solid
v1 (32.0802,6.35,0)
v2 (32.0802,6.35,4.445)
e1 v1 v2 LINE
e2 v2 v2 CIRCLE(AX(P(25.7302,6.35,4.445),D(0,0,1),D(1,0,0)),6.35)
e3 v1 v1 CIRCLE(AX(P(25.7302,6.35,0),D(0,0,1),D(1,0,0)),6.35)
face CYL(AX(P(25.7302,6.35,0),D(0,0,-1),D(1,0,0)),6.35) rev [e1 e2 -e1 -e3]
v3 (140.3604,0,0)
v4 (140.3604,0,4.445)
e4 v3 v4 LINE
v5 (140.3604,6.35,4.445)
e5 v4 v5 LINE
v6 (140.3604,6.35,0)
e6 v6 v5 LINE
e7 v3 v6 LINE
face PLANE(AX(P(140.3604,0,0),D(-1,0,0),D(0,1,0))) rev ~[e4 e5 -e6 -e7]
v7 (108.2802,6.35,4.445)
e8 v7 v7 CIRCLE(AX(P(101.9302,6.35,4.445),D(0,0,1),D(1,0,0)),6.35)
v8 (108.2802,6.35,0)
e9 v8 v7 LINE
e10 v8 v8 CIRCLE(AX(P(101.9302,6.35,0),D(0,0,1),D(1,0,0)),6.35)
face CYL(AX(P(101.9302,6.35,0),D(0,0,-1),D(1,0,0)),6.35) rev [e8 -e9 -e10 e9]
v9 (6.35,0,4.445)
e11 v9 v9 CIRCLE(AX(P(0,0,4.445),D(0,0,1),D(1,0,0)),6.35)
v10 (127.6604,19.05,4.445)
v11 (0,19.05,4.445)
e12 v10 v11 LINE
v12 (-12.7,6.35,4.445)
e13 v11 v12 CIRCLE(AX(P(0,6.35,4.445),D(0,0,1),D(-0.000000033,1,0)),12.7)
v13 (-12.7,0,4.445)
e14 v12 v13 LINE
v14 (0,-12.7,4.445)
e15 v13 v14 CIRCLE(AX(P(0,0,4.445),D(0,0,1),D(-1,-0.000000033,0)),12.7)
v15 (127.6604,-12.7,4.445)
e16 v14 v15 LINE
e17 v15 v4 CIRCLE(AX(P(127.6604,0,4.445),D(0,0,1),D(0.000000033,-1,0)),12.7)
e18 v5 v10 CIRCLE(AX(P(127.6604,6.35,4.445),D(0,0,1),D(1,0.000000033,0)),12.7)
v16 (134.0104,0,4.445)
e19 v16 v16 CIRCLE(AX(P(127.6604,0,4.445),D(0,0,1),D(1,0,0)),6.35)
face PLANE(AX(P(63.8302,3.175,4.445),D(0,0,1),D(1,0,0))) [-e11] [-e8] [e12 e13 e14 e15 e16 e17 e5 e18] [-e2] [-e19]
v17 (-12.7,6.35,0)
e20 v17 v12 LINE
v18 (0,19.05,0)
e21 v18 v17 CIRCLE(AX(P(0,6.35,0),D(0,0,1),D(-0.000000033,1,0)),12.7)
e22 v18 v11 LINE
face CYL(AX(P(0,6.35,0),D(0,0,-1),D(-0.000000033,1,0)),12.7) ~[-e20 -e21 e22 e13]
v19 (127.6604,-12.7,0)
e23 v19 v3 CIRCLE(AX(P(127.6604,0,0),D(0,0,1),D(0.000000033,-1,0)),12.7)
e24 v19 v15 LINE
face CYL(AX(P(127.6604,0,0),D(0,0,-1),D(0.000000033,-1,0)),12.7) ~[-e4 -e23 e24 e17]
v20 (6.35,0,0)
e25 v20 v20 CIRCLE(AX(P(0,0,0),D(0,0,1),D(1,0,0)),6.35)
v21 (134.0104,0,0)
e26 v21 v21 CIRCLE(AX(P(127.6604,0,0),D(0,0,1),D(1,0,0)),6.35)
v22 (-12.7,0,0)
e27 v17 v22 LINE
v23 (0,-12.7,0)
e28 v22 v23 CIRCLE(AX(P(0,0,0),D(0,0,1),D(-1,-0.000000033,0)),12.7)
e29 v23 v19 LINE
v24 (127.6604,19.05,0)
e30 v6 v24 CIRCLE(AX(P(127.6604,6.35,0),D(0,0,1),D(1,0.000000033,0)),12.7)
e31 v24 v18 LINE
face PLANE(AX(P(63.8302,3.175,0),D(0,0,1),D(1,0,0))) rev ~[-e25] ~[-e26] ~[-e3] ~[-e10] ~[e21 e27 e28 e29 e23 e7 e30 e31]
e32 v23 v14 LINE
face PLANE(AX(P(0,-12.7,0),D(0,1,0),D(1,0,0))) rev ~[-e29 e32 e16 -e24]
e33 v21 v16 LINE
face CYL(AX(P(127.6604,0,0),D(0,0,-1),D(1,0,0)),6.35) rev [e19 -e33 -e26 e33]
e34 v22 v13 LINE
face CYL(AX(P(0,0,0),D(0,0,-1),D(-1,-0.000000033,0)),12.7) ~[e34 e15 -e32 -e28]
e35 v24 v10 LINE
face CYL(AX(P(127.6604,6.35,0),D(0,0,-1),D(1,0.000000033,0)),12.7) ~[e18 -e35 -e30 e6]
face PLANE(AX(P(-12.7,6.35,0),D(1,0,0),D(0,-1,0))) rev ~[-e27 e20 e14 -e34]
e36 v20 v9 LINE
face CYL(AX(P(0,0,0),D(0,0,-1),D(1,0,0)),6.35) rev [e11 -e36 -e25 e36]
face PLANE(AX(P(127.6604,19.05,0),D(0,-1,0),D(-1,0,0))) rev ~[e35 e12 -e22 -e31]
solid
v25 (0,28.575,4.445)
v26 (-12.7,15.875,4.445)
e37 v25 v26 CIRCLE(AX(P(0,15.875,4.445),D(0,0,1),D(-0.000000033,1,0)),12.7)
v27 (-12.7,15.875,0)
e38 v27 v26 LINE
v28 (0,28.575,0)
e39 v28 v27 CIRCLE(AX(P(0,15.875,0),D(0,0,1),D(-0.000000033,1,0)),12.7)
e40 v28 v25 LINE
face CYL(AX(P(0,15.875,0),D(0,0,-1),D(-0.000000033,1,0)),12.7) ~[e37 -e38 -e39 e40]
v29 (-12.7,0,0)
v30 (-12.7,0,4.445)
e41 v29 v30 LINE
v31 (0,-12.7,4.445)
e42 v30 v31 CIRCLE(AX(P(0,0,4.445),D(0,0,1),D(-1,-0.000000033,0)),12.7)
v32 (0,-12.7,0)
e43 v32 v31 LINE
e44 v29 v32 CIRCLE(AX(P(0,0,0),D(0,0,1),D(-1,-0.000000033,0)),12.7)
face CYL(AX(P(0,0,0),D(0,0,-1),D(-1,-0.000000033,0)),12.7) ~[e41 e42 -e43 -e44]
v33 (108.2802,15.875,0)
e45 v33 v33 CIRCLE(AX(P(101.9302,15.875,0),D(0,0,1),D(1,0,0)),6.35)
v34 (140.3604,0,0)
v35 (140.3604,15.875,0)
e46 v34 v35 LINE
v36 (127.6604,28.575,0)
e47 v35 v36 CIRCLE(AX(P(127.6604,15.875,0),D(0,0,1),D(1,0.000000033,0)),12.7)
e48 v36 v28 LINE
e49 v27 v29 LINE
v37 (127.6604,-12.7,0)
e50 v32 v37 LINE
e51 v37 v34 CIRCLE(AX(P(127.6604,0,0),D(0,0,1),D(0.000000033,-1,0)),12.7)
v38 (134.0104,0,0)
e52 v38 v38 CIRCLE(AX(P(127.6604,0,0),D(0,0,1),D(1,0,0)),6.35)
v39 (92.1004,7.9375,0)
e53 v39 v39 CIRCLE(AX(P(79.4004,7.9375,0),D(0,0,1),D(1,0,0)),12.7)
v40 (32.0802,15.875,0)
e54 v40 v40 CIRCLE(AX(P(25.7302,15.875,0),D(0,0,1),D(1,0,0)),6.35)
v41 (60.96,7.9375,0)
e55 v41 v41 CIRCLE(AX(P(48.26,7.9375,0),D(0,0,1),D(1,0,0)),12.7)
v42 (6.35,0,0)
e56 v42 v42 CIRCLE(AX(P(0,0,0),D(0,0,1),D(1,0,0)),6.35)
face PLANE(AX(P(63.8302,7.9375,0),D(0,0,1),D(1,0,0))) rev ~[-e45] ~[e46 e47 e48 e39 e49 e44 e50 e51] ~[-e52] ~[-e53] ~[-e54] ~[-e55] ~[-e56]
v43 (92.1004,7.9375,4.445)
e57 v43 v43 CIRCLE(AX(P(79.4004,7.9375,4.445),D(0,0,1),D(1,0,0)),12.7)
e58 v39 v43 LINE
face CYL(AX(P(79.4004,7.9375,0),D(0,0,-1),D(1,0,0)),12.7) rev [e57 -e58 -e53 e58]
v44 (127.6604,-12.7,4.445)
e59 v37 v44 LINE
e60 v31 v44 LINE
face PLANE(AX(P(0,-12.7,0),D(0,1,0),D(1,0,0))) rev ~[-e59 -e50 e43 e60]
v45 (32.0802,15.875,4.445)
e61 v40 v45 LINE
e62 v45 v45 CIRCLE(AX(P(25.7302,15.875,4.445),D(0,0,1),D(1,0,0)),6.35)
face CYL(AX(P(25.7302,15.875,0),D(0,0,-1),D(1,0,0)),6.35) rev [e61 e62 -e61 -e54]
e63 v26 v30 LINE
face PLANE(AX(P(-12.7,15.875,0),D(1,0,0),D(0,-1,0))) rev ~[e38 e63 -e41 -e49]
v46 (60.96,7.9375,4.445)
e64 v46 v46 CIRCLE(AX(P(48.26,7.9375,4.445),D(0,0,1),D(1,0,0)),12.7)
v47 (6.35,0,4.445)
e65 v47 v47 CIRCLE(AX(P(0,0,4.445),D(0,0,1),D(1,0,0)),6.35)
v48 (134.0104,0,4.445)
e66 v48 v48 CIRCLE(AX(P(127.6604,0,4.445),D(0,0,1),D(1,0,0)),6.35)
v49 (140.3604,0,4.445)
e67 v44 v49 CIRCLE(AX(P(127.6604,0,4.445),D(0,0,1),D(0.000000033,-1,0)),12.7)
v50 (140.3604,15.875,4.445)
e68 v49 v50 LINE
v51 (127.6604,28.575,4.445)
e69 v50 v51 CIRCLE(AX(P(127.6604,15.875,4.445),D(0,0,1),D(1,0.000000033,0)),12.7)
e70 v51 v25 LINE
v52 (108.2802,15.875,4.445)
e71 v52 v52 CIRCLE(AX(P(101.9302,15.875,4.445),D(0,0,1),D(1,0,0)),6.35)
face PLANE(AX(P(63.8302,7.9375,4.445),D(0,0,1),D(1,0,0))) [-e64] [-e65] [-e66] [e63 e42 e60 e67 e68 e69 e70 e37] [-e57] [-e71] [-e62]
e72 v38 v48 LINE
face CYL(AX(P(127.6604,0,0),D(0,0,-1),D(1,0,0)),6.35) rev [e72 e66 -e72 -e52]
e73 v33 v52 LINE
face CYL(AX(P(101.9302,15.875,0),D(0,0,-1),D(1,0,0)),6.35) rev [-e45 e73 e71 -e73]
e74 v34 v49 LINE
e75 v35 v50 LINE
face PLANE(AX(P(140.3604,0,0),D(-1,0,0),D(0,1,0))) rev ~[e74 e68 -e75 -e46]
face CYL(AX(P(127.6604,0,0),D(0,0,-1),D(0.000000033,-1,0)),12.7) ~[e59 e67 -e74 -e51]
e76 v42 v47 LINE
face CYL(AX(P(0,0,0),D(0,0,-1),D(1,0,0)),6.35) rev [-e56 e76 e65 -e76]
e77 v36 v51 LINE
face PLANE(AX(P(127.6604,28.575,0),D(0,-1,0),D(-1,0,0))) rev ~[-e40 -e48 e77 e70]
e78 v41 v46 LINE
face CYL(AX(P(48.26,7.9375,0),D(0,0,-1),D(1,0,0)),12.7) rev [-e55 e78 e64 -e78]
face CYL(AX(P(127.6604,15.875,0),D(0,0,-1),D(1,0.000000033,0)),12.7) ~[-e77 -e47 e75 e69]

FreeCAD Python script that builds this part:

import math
import FreeCAD as App
import Part
import Sketcher

V = App.Vector
Q = App.Units.Quantity

doc = App.newDocument("Part")
body = doc.addObject("PartDesign::Body", "Body")

# Sketch on XY plane
sketch1 = doc.addObject("Sketcher::SketchObject", "Sketch")
body.addObject(sketch1)
sketch1.AttachmentSupport = (doc.XY_Plane, [""])
sketch1.MapMode = "FlatFace"
sketch1.addGeometry([
    Part.LineSegment(V(127.6604, 19.05, 0), V(0, 19.05, 0)),  # 0
    Part.ArcOfCircle(Part.Circle(V(0, 6.35, 0), V(0, 0, 1), 12.7), math.radians(90.000002), math.radians(179.999998)),  # 1
    Part.LineSegment(V(-12.7, 6.35, 0), V(-12.7, 0, 0)),  # 2
    Part.ArcOfCircle(Part.Circle(V(0, 0, 0), V(0, 0, 1), 12.7), math.radians(-179.999998), math.radians(-90.000002)),  # 3
    Part.LineSegment(V(0, -12.7, 0), V(127.6604, -12.7, 0)),  # 4
    Part.ArcOfCircle(Part.Circle(V(127.6604, 0, 0), V(0, 0, 1), 12.7), math.radians(-89.999998), math.radians(-0.000002)),  # 5
    Part.LineSegment(V(140.3604, 0, 0), V(140.3604, 6.35, 0)),  # 6
    Part.ArcOfCircle(Part.Circle(V(127.6604, 6.35, 0), V(0, 0, 1), 12.7), math.radians(0.000002), math.radians(89.999998)),  # 7
    Part.Circle(V(0, 0, 0), V(0, 0, 1), 6.35),  # 8
    Part.Circle(V(127.6604, 0, 0), V(0, 0, 1), 6.35),  # 9
    Part.Circle(V(25.7302, 6.35, 0), V(0, 0, 1), 6.35),  # 10
    Part.Circle(V(101.9302, 6.35, 0), V(0, 0, 1), 6.35),  # 11
], False)
sketch1.addConstraint([
    Sketcher.Constraint("Tangent", 0, 2, 1, 1),
    Sketcher.Constraint("Tangent", 1, 2, 2, 1),
    Sketcher.Constraint("Tangent", 2, 2, 3, 1),
    Sketcher.Constraint("Tangent", 3, 2, 4, 1),
    Sketcher.Constraint("Tangent", 4, 2, 5, 1),
    Sketcher.Constraint("Tangent", 5, 2, 6, 1),
    Sketcher.Constraint("Tangent", 6, 2, 7, 1),
    Sketcher.Constraint("Tangent", 7, 2, 0, 1),
    Sketcher.Constraint("Horizontal", 0),
    Sketcher.Constraint("Vertical", 2),
    Sketcher.Constraint("Horizontal", 4),
    Sketcher.Constraint("Vertical", 6),
    Sketcher.Constraint("Coincident", 3, 3, -1, 1),
    Sketcher.Constraint("Coincident", 8, 3, -1, 1),
    Sketcher.Constraint("Coincident", 9, 3, 5, 3),
    Sketcher.Constraint("Equal", 1, 3),
    Sketcher.Constraint("Equal", 3, 5),
    Sketcher.Constraint("Equal", 5, 7),
    Sketcher.Constraint("Equal", 8, 9),
    Sketcher.Constraint("Equal", 9, 10),
    Sketcher.Constraint("Equal", 10, 11),
    Sketcher.Constraint("Horizontal", 7, 3, 10, 3),
    Sketcher.Constraint("Horizontal", 10, 3, 11, 3),
    Sketcher.Constraint("Diameter", 8, Q("0.5 in")),
    Sketcher.Constraint("Radius", 1, Q("0.5 in")),
    Sketcher.Constraint("DistanceX", 10, 3, 11, 3, Q("3 in")),
    Sketcher.Constraint("DistanceY", 2, 2, 2, 1, Q("0.25 in")),
    Sketcher.Constraint("DistanceX", 0, 2, 0, 1, Q("5.026 in")),
    Sketcher.Constraint("DistanceX", -1, 1, 10, 3, Q("1.013 in")),
])
pad1 = doc.addObject("PartDesign::Pad", "Pad")
body.addObject(pad1)
pad1.Profile = sketch1
pad1.Length = Q("0.175 in")
body2 = doc.addObject("PartDesign::Body", "Body001")

# Sketch on XY plane
sketch2 = doc.addObject("Sketcher::SketchObject", "Sketch001")
body2.addObject(sketch2)
sketch2.AttachmentSupport = (doc.getObject("XY_Plane001"), [""])
sketch2.MapMode = "FlatFace"
sketch2.addGeometry([
    Part.LineSegment(V(127.6604, 28.575, 0), V(0, 28.575, 0)),  # 0
    Part.ArcOfCircle(Part.Circle(V(0, 15.875, 0), V(0, 0, 1), 12.7), math.radians(90.000002), math.radians(179.999998)),  # 1
    Part.LineSegment(V(-12.7, 15.875, 0), V(-12.7, 0, 0)),  # 2
    Part.ArcOfCircle(Part.Circle(V(0, 0, 0), V(0, 0, 1), 12.7), math.radians(-179.999998), math.radians(-90.000002)),  # 3
    Part.LineSegment(V(0, -12.7, 0), V(127.6604, -12.7, 0)),  # 4
    Part.ArcOfCircle(Part.Circle(V(127.6604, 0, 0), V(0, 0, 1), 12.7), math.radians(-89.999998), math.radians(-0.000002)),  # 5
    Part.LineSegment(V(140.3604, 0, 0), V(140.3604, 15.875, 0)),  # 6
    Part.ArcOfCircle(Part.Circle(V(127.6604, 15.875, 0), V(0, 0, 1), 12.7), math.radians(0.000002), math.radians(89.999998)),  # 7
    Part.Circle(V(0, 0, 0), V(0, 0, 1), 6.35),  # 8
    Part.Circle(V(127.6604, 0, 0), V(0, 0, 1), 6.35),  # 9
    Part.Circle(V(48.26, 7.9375, 0), V(0, 0, 1), 12.7),  # 10
    Part.Circle(V(25.7302, 15.875, 0), V(0, 0, 1), 6.35),  # 11
    Part.Circle(V(79.4004, 7.9375, 0), V(0, 0, 1), 12.7),  # 12
    Part.Circle(V(101.9302, 15.875, 0), V(0, 0, 1), 6.35),  # 13
], False)
sketch2.addConstraint([
    Sketcher.Constraint("Tangent", 0, 2, 1, 1),
    Sketcher.Constraint("Tangent", 1, 2, 2, 1),
    Sketcher.Constraint("Tangent", 2, 2, 3, 1),
    Sketcher.Constraint("Tangent", 3, 2, 4, 1),
    Sketcher.Constraint("Tangent", 4, 2, 5, 1),
    Sketcher.Constraint("Tangent", 5, 2, 6, 1),
    Sketcher.Constraint("Tangent", 6, 2, 7, 1),
    Sketcher.Constraint("Tangent", 7, 2, 0, 1),
    Sketcher.Constraint("Horizontal", 0),
    Sketcher.Constraint("Vertical", 2),
    Sketcher.Constraint("Horizontal", 4),
    Sketcher.Constraint("Vertical", 6),
    Sketcher.Constraint("Coincident", 3, 3, -1, 1),
    Sketcher.Constraint("Coincident", 8, 3, -1, 1),
    Sketcher.Constraint("Coincident", 9, 3, 5, 3),
    Sketcher.Constraint("Equal", 1, 3),
    Sketcher.Constraint("Equal", 3, 5),
    Sketcher.Constraint("Equal", 5, 7),
    Sketcher.Constraint("Equal", 8, 9),
    Sketcher.Constraint("Equal", 7, 10),
    Sketcher.Constraint("Equal", 9, 11),
    Sketcher.Constraint("Equal", 10, 12),
    Sketcher.Constraint("Equal", 11, 13),
    Sketcher.Constraint("Horizontal", 7, 3, 11, 3),
    Sketcher.Constraint("Horizontal", 10, 3, 12, 3),
    Sketcher.Constraint("Horizontal", 11, 3, 13, 3),
    Sketcher.Constraint("Diameter", 10, Q("1 in")),
    Sketcher.Constraint("Diameter", 8, Q("0.5 in")),
    Sketcher.Constraint("DistanceX", -1, 1, 10, 3, Q("1.9 in")),
    Sketcher.Constraint("DistanceX", 12, 3, 5, 3, Q("1.9 in")),
    Sketcher.Constraint("DistanceX", 0, 2, 0, 1, Q("5.026 in")),
    Sketcher.Constraint("DistanceY", 2, 2, 2, 1, Q("0.625 in")),
    Sketcher.Constraint("DistanceY", -1, 1, 10, 3, Q("0.3125 in")),
    Sketcher.Constraint("DistanceX", -1, 1, 11, 3, Q("1.013 in")),
    Sketcher.Constraint("DistanceX", -1, 1, 13, 3, Q("4.013 in")),
])
pad2 = doc.addObject("PartDesign::Pad", "Pad001")
body2.addObject(pad2)
pad2.Profile = sketch2
pad2.Length = Q("0.175 in")

doc.recompute()
